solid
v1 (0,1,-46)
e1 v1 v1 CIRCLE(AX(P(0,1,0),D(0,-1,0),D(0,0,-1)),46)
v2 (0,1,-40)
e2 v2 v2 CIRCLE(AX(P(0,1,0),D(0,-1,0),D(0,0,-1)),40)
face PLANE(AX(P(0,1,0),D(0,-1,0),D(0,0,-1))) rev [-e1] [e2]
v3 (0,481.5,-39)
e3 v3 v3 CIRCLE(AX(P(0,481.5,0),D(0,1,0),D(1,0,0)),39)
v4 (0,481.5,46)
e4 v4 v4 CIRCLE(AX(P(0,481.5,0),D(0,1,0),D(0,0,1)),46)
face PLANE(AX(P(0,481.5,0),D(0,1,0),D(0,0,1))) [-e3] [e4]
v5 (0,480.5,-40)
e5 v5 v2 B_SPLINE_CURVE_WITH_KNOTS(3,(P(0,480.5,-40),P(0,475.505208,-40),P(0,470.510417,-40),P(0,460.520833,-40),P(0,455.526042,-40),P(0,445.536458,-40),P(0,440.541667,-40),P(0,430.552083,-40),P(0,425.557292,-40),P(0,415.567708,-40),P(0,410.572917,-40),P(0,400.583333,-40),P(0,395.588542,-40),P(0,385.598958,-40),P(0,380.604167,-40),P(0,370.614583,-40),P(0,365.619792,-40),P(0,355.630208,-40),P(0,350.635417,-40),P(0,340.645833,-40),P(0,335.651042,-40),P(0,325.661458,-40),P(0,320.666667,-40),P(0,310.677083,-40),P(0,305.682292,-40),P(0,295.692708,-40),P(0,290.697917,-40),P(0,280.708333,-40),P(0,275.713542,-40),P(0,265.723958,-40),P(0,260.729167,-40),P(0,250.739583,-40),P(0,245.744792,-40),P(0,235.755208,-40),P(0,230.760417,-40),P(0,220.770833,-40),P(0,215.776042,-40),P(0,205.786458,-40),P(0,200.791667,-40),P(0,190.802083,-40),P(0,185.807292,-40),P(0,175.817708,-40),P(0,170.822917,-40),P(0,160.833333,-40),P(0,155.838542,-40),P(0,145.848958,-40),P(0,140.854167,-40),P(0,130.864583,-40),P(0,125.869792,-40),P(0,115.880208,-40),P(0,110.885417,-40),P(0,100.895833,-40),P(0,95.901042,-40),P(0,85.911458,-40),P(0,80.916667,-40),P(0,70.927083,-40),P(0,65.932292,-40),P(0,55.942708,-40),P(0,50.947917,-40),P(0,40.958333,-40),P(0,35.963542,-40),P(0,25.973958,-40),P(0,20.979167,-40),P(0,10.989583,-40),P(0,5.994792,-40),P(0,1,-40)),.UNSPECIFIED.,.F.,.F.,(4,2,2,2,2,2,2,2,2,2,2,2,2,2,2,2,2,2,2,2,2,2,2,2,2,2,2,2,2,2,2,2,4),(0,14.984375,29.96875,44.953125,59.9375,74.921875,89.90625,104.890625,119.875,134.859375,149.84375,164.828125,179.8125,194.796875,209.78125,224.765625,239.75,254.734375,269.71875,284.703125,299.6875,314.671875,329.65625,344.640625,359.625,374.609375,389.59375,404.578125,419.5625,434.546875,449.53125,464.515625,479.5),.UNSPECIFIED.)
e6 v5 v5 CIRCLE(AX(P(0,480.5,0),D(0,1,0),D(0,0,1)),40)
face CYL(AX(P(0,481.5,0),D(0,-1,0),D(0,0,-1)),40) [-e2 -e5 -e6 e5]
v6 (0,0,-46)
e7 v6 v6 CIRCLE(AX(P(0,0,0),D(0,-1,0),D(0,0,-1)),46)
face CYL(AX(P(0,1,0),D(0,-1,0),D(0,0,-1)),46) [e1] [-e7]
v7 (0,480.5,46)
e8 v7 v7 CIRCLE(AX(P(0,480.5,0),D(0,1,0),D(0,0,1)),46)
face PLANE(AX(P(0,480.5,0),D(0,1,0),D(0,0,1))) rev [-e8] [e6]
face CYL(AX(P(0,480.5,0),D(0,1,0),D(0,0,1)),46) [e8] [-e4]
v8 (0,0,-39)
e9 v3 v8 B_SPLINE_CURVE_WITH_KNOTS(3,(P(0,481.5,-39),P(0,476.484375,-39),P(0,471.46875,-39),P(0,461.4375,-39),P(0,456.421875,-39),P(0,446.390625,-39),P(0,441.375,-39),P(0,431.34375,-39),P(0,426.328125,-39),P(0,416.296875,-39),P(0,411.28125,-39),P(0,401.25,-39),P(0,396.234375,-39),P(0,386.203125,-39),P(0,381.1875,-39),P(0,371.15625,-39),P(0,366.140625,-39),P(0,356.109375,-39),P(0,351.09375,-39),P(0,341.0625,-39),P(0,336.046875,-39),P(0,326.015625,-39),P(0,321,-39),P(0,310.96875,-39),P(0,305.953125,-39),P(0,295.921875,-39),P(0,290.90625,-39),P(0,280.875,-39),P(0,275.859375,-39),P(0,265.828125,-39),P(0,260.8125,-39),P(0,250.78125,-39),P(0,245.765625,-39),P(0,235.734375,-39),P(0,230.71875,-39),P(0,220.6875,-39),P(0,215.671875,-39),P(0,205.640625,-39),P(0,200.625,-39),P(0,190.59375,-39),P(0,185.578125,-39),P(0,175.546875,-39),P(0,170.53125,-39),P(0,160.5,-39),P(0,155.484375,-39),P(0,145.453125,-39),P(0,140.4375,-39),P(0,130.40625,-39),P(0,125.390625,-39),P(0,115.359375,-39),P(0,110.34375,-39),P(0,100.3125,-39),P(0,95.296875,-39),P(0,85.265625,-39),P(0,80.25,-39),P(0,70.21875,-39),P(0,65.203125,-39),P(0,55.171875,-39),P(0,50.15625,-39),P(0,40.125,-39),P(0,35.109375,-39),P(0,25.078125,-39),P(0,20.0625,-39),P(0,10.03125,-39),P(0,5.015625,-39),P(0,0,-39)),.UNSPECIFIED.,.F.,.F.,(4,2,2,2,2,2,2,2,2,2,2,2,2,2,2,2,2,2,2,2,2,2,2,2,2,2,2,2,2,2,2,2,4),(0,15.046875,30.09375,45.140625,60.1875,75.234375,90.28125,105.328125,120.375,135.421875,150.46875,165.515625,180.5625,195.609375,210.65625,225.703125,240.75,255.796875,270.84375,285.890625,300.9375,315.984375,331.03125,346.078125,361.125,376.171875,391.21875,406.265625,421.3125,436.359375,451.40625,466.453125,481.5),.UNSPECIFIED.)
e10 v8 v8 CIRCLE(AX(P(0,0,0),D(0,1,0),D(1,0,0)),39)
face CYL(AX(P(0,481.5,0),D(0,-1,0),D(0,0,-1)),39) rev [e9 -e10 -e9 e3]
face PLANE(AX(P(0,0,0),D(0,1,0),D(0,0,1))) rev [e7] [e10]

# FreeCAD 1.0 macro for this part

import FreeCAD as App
import Part
import Sketcher
from FreeCAD import Vector
Q = App.Units.Quantity

doc = App.newDocument("Part")
body = doc.addObject("PartDesign::Body", "Body")

# Sketch on XZ plane
sketch1 = doc.addObject("Sketcher::SketchObject", "Sketch")
body.addObject(sketch1)
sketch1.AttachmentSupport = (doc.XZ_Plane, [""])
sketch1.MapMode = "FlatFace"
sketch1.addGeometry([
    Part.Circle(Vector(0, 0, 0), Vector(0, 0, 1), 40),
    Part.Circle(Vector(0, 0, 0), Vector(0, 0, 1), 39),
], False)
sketch1.addConstraint([
    Sketcher.Constraint("Coincident", 0, 3, -1, 1),
    Sketcher.Constraint("Coincident", 1, 3, -1, 1),
    Sketcher.Constraint("Diameter", 0, Q("80 mm")),
    Sketcher.Constraint("Diameter", 1, Q("78 mm")),
])
pad1 = doc.addObject("PartDesign::Pad", "Pad")
body.addObject(pad1)
pad1.Profile = sketch1
pad1.Length = 481.5
pad1.Reversed = True

# Sketch on XZ plane
sketch2 = doc.addObject("Sketcher::SketchObject", "Sketch001")
body.addObject(sketch2)
sketch2.AttachmentSupport = (doc.XZ_Plane, [""])
sketch2.MapMode = "FlatFace"
sketch2.AttachmentOffset = App.Placement(Vector(0, 0, -480.5), App.Rotation())
sketch2.addGeometry([
    Part.Circle(Vector(0, 0, 0), Vector(0, 0, 1), 46),
    Part.Circle(Vector(0, 0, 0), Vector(0, 0, 1), 40),
], False)
sketch2.addConstraint([
    Sketcher.Constraint("Coincident", 0, 3, -1, 1),
    Sketcher.Constraint("Coincident", 1, 3, -1, 1),
    Sketcher.Constraint("Diameter", 0, Q("92 mm")),
    Sketcher.Constraint("Diameter", 1, Q("80 mm")),
])
pad2 = doc.addObject("PartDesign::Pad", "Pad001")
body.addObject(pad2)
pad2.Profile = sketch2
pad2.Length = 1
pad2.Reversed = True

# Sketch on XZ plane
sketch3 = doc.addObject("Sketcher::SketchObject", "Sketch002")
body.addObject(sketch3)
sketch3.AttachmentSupport = (doc.XZ_Plane, [""])
sketch3.MapMode = "FlatFace"
sketch3.addGeometry([
    Part.Circle(Vector(0, 0, 0), Vector(0, 0, 1), 46),
    Part.Circle(Vector(0, 0, 0), Vector(0, 0, 1), 40),
], False)
sketch3.addConstraint([
    Sketcher.Constraint("Coincident", 0, 3, -1, 1),
    Sketcher.Constraint("Coincident", 1, 3, -1, 1),
    Sketcher.Constraint("Diameter", 0, Q("92 mm")),
    Sketcher.Constraint("Diameter", 1, Q("80 mm")),
])
pad3 = doc.addObject("PartDesign::Pad", "Pad002")
body.addObject(pad3)
pad3.Profile = sketch3
pad3.Length = 1
pad3.Reversed = True

doc.recompute()
